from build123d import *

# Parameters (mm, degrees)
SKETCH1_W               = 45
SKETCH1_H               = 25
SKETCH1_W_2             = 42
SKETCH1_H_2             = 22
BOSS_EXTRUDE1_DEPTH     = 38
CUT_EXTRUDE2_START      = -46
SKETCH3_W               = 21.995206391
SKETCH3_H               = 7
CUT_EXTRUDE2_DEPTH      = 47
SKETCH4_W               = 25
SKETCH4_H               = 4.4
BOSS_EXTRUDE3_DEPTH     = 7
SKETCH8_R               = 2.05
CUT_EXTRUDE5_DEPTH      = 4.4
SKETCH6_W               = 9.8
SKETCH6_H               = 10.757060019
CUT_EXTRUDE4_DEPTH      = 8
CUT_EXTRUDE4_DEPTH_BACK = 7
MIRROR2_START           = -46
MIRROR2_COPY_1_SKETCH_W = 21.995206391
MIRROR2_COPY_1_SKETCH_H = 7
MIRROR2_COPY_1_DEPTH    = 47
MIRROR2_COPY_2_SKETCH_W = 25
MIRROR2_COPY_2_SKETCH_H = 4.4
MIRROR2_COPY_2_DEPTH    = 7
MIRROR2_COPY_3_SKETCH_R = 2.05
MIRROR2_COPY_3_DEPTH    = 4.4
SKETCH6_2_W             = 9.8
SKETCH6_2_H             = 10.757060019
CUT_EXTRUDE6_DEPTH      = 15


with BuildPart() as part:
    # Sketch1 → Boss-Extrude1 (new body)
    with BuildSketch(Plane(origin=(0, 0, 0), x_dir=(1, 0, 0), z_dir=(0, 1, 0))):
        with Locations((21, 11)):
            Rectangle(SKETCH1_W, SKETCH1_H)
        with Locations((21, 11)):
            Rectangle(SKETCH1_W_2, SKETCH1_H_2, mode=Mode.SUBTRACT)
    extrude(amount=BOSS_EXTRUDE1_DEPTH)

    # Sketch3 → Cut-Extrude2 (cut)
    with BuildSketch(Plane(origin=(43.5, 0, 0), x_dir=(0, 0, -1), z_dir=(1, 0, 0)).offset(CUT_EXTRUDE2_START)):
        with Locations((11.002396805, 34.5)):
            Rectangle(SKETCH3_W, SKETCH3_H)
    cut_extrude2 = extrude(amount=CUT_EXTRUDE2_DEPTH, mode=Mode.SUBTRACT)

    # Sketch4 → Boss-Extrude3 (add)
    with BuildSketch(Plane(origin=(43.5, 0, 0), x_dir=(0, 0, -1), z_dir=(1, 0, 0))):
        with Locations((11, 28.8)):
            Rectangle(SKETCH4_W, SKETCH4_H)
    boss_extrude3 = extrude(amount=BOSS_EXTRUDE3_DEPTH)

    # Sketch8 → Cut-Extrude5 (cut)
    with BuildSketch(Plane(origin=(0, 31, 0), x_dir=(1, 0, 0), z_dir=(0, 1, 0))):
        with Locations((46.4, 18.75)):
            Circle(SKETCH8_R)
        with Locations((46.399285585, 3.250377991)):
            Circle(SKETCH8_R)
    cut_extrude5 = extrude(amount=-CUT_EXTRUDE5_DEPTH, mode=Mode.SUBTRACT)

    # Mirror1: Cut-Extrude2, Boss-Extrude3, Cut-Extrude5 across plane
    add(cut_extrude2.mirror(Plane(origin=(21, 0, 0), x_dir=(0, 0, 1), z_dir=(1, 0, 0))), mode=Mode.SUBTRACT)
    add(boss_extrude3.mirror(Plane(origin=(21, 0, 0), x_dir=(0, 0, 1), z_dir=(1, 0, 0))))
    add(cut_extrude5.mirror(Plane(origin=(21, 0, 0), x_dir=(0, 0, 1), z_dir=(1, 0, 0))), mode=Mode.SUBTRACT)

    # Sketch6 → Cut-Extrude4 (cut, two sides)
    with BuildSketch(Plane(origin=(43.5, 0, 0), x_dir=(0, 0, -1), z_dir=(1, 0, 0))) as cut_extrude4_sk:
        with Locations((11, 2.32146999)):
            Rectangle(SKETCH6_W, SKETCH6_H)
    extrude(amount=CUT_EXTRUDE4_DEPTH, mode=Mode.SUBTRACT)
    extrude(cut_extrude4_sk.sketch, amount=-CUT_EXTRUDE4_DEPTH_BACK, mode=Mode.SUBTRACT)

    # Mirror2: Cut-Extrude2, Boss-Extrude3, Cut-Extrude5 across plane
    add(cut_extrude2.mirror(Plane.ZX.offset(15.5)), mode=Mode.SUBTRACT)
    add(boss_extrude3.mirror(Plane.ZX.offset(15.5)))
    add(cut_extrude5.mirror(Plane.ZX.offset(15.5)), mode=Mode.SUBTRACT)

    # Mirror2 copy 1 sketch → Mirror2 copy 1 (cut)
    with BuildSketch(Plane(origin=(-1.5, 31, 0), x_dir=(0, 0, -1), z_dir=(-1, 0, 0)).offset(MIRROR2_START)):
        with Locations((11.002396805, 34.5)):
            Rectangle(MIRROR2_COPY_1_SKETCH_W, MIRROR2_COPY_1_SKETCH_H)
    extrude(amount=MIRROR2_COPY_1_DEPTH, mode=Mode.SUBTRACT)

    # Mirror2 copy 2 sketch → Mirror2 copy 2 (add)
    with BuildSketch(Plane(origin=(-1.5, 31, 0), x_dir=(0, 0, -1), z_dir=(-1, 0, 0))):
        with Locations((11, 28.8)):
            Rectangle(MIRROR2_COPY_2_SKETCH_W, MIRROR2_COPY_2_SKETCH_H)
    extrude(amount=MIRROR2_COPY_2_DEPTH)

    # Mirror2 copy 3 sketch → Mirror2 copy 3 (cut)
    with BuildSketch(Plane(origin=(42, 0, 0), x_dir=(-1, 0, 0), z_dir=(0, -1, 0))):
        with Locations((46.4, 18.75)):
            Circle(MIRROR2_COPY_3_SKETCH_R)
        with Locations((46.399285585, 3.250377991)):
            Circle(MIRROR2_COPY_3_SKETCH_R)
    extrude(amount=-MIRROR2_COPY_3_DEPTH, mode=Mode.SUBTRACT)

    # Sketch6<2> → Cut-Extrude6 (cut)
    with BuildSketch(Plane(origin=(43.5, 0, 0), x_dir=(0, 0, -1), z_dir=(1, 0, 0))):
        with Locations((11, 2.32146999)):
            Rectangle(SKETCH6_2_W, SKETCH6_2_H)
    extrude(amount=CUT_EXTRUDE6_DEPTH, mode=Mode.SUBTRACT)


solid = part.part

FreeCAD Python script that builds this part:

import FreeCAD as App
import Part
import Sketcher
from FreeCAD import Vector
Q = App.Units.Quantity


def add_polygon(sketch, points):
    """Adds a closed chain of lines whose ends are joined by coincident constraints."""
    first, n = sketch.GeometryCount, len(points)
    for a, b in zip(points, points[1:] + points[:1]):
        sketch.addGeometry(Part.LineSegment(App.Vector(*a, 0), App.Vector(*b, 0)), False)
    for i in range(n):
        sketch.addConstraint(Sketcher.Constraint("Coincident", first + i, 2, first + (i + 1) % n, 1))

doc = App.newDocument("Part")
body = doc.addObject("PartDesign::Body", "Body")

# Sketch on XZ plane
sketch1 = doc.addObject("Sketcher::SketchObject", "Sketch")
body.addObject(sketch1)
sketch1.AttachmentSupport = (doc.XZ_Plane, [""])
sketch1.MapMode = "FlatFace"
add_polygon(sketch1, [(-1.5, -23.5), (-1.5, 1.5), (43.5, 1.5), (43.5, -23.5)])  # lines 0-3
add_polygon(sketch1, [(42, 0), (0, 0), (0, -22), (42, -22)])  # lines 4-7
sketch1.addConstraint([
    Sketcher.Constraint("Vertical", 0),
    Sketcher.Constraint("Horizontal", 1),
    Sketcher.Constraint("Vertical", 2),
    Sketcher.Constraint("Horizontal", 3),
    Sketcher.Constraint("Horizontal", 4),
    Sketcher.Constraint("Vertical", 5),
    Sketcher.Constraint("Horizontal", 6),
    Sketcher.Constraint("Vertical", 7),
    Sketcher.Constraint("Coincident", 4, 2, -1, 1),
    Sketcher.Constraint("DistanceX", 1, 1, 1, 2, Q("45 mm")),
    Sketcher.Constraint("DistanceX", 4, 2, 4, 1, Q("42 mm")),
    Sketcher.Constraint("DistanceY", 0, 1, 0, 2, Q("25 mm")),
    Sketcher.Constraint("DistanceY", 5, 2, 5, 1, Q("22 mm")),
    Sketcher.Constraint("DistanceX", 0, 2, -1, 1, Q("1.5 mm")),
    Sketcher.Constraint("DistanceY", -1, 1, 0, 2, Q("1.5 mm")),
])
pad1 = doc.addObject("PartDesign::Pad", "Pad")
body.addObject(pad1)
pad1.Profile = sketch1
pad1.Length = 38
pad1.Reversed = True

# Sketch on YZ plane
sketch2 = doc.addObject("Sketcher::SketchObject", "Sketch001")
body.addObject(sketch2)
sketch2.AttachmentSupport = (doc.YZ_Plane, [""])
sketch2.MapMode = "FlatFace"
sketch2.AttachmentOffset = App.Placement(Vector(0, 0, -2.5), App.Rotation())
add_polygon(sketch2, [(38, -0.004794), (31, -0.004794), (31, -22), (38, -22)])  # lines 0-3
sketch2.addConstraint([
    Sketcher.Constraint("Horizontal", 0),
    Sketcher.Constraint("Vertical", 1),
    Sketcher.Constraint("Horizontal", 2),
    Sketcher.Constraint("Vertical", 3),
    Sketcher.Constraint("DistanceX", 0, 2, 0, 1, Q("7 mm")),
    Sketcher.Constraint("DistanceX", -1, 1, 0, 2, Q("31 mm")),
    Sketcher.Constraint("DistanceY", 1, 2, -1, 1, Q("22 mm")),
    Sketcher.Constraint("DistanceY", 1, 2, 1, 1, Q("21.995206 mm")),
])
pocket1 = doc.addObject("PartDesign::Pocket", "Pocket")
body.addObject(pocket1)
pocket1.Profile = sketch2
pocket1.Length = 47
pocket1.Reversed = True

# Sketch on YZ plane
sketch3 = doc.addObject("Sketcher::SketchObject", "Sketch002")
body.addObject(sketch3)
sketch3.AttachmentSupport = (doc.YZ_Plane, [""])
sketch3.MapMode = "FlatFace"
sketch3.AttachmentOffset = App.Placement(Vector(0, 0, 43.5), App.Rotation())
add_polygon(sketch3, [(31, 1.5), (26.6, 1.5), (26.6, -23.5), (31, -23.5)])  # lines 0-3
sketch3.addConstraint([
    Sketcher.Constraint("Horizontal", 0),
    Sketcher.Constraint("Vertical", 1),
    Sketcher.Constraint("Horizontal", 2),
    Sketcher.Constraint("Vertical", 3),
    Sketcher.Constraint("DistanceY", 1, 2, 1, 1, Q("25 mm")),
    Sketcher.Constraint("DistanceX", 0, 2, 0, 1, Q("4.4 mm")),
    Sketcher.Constraint("DistanceX", -1, 1, 2, 2, Q("31 mm")),
    Sketcher.Constraint("DistanceY", -1, 1, 0, 2, Q("1.5 mm")),
])
pad2 = doc.addObject("PartDesign::Pad", "Pad001")
body.addObject(pad2)
pad2.Profile = sketch3
pad2.Length = 7

# Sketch on XZ plane
sketch4 = doc.addObject("Sketcher::SketchObject", "Sketch003")
body.addObject(sketch4)
sketch4.AttachmentSupport = (doc.XZ_Plane, [""])
sketch4.MapMode = "FlatFace"
sketch4.AttachmentOffset = App.Placement(Vector(0, 0, -31), App.Rotation())
sketch4.addGeometry([
    Part.Circle(Vector(46.4, -18.75, 0), Vector(0, 0, 1), 2.05),
    Part.Circle(Vector(46.399286, -3.250378, 0), Vector(0, 0, 1), 2.05),
], False)
sketch4.addConstraint([
    Sketcher.Constraint("Equal", 0, 1),
    Sketcher.Constraint("Diameter", 0, Q("4.1 mm")),
    Sketcher.Constraint("DistanceX", -1, 1, 0, 3, Q("46.4 mm")),
    Sketcher.Constraint("DistanceY", 0, 3, -1, 1, Q("18.75 mm")),
    Sketcher.Constraint("DistanceX", -1, 1, 1, 3, Q("46.399286 mm")),
    Sketcher.Constraint("DistanceY", 1, 3, -1, 1, Q("3.250378 mm")),
])
pocket2 = doc.addObject("PartDesign::Pocket", "Pocket001")
body.addObject(pocket2)
pocket2.Profile = sketch4
pocket2.Length = 4.4
pocket2.Reversed = True
doc.recompute()

datumplane = doc.addObject("PartDesign::Plane", "DatumPlane")
body.addObject(datumplane)
datumplane.AttachmentSupport = (doc.YZ_Plane, [""])
datumplane.MapMode = "FlatFace"
datumplane.AttachmentOffset = App.Placement(Vector(0, 0, 21), App.Rotation())
mirrored = doc.addObject("PartDesign::Mirrored", "Mirrored")
body.addObject(mirrored)
mirrored.Originals = [pocket1, pad2, pocket2]
mirrored.MirrorPlane = (datumplane, [""])
body.Tip = mirrored

# Sketch on YZ plane
sketch5 = doc.addObject("Sketcher::SketchObject", "Sketch004")
body.addObject(sketch5)
sketch5.AttachmentSupport = (doc.YZ_Plane, [""])
sketch5.MapMode = "FlatFace"
sketch5.AttachmentOffset = App.Placement(Vector(0, 0, 43.5), App.Rotation())
add_polygon(sketch5, [(7.7, -6.1), (-3.05706, -6.1), (-3.05706, -15.9), (7.7, -15.9)])  # lines 0-3
sketch5.addConstraint([
    Sketcher.Constraint("Horizontal", 0),
    Sketcher.Constraint("Vertical", 1),
    Sketcher.Constraint("Horizontal", 2),
    Sketcher.Constraint("Vertical", 3),
    Sketcher.Constraint("DistanceY", 1, 2, 1, 1, Q("9.8 mm")),
    Sketcher.Constraint("DistanceY", 0, 2, -1, 1, Q("6.1 mm")),
    Sketcher.Constraint("DistanceX", -1, 1, 2, 2, Q("7.7 mm")),
    Sketcher.Constraint("DistanceX", 0, 2, 0, 1, Q("10.75706 mm")),
])
pocket3 = doc.addObject("PartDesign::Pocket", "Pocket002")
body.addObject(pocket3)
pocket3.Profile = sketch5
pocket3.Type = "TwoLengths"
pocket3.Length = 8
pocket3.Length2 = 7
pocket3.Reversed = True
doc.recompute()

datumplane2 = doc.addObject("PartDesign::Plane", "DatumPlane001")
body.addObject(datumplane2)
datumplane2.AttachmentSupport = (doc.XZ_Plane, [""])
datumplane2.MapMode = "FlatFace"
datumplane2.AttachmentOffset = App.Placement(Vector(0, 0, -15.5), App.Rotation())
mirrored2 = doc.addObject("PartDesign::Mirrored", "Mirrored001")
body.addObject(mirrored2)
mirrored2.Originals = [pocket1, pad2, pocket2]
mirrored2.MirrorPlane = (datumplane2, [""])
body.Tip = mirrored2

# Sketch on YZ plane
sketch6 = doc.addObject("Sketcher::SketchObject", "Sketch005")
body.addObject(sketch6)
sketch6.AttachmentSupport = (doc.YZ_Plane, [""])
sketch6.MapMode = "FlatFace"
sketch6.AttachmentOffset = App.Placement(Vector(0, 0, 44.5), App.Rotation())
add_polygon(sketch6, [(-7, -0.004794), (0, -0.004794), (0, -22), (-7, -22)])  # lines 0-3
sketch6.addConstraint([
    Sketcher.Constraint("Horizontal", 0),
    Sketcher.Constraint("Vertical", 1),
    Sketcher.Constraint("Horizontal", 2),
    Sketcher.Constraint("Vertical", 3),
    Sketcher.Constraint("PointOnObject", 0, 2, -2),
    Sketcher.Constraint("DistanceX", 0, 1, 0, 2, Q("7 mm")),
    Sketcher.Constraint("DistanceY", 1, 2, -1, 1, Q("22 mm")),
    Sketcher.Constraint("DistanceY", 1, 2, 1, 1, Q("21.995206 mm")),
])
pocket4 = doc.addObject("PartDesign::Pocket", "Pocket003")
body.addObject(pocket4)
pocket4.Profile = sketch6
pocket4.Length = 47

# Sketch on YZ plane
sketch7 = doc.addObject("Sketcher::SketchObject", "Sketch006")
body.addObject(sketch7)
sketch7.AttachmentSupport = (doc.YZ_Plane, [""])
sketch7.MapMode = "FlatFace"
sketch7.AttachmentOffset = App.Placement(Vector(0, 0, -1.5), App.Rotation())
add_polygon(sketch7, [(0, 1.5), (4.4, 1.5), (4.4, -23.5), (0, -23.5)])  # lines 0-3
sketch7.addConstraint([
    Sketcher.Constraint("Horizontal", 0),
    Sketcher.Constraint("Vertical", 1),
    Sketcher.Constraint("Horizontal", 2),
    Sketcher.Constraint("Vertical", 3),
    Sketcher.Constraint("PointOnObject", 2, 2, -2),
    Sketcher.Constraint("DistanceY", 1, 2, 1, 1, Q("25 mm")),
    Sketcher.Constraint("DistanceX", 0, 1, 0, 2, Q("4.4 mm")),
    Sketcher.Constraint("DistanceY", -1, 1, 0, 2, Q("1.5 mm")),
])
pad3 = doc.addObject("PartDesign::Pad", "Pad002")
body.addObject(pad3)
pad3.Profile = sketch7
pad3.Length = 7
pad3.Reversed = True

# Sketch on XZ plane
sketch8 = doc.addObject("Sketcher::SketchObject", "Sketch007")
body.addObject(sketch8)
sketch8.AttachmentSupport = (doc.XZ_Plane, [""])
sketch8.MapMode = "FlatFace"
sketch8.addGeometry([
    Part.Circle(Vector(-4.4, -18.75, 0), Vector(0, 0, 1), 2.05),
    Part.Circle(Vector(-4.399286, -3.250378, 0), Vector(0, 0, 1), 2.05),
], False)
sketch8.addConstraint([
    Sketcher.Constraint("Equal", 0, 1),
    Sketcher.Constraint("Diameter", 0, Q("4.1 mm")),
    Sketcher.Constraint("DistanceX", 0, 3, -1, 1, Q("4.4 mm")),
    Sketcher.Constraint("DistanceY", 0, 3, -1, 1, Q("18.75 mm")),
    Sketcher.Constraint("DistanceX", 1, 3, -1, 1, Q("4.399286 mm")),
    Sketcher.Constraint("DistanceY", 1, 3, -1, 1, Q("3.250378 mm")),
])
pocket5 = doc.addObject("PartDesign::Pocket", "Pocket004")
body.addObject(pocket5)
pocket5.Profile = sketch8
pocket5.Length = 4.4

# Sketch on YZ plane
sketch9 = doc.addObject("Sketcher::SketchObject", "Sketch008")
body.addObject(sketch9)
sketch9.AttachmentSupport = (doc.YZ_Plane, [""])
sketch9.MapMode = "FlatFace"
sketch9.AttachmentOffset = App.Placement(Vector(0, 0, 43.5), App.Rotation())
add_polygon(sketch9, [(7.7, -6.1), (-3.05706, -6.1), (-3.05706, -15.9), (7.7, -15.9)])  # lines 0-3
sketch9.addConstraint([
    Sketcher.Constraint("Horizontal", 0),
    Sketcher.Constraint("Vertical", 1),
    Sketcher.Constraint("Horizontal", 2),
    Sketcher.Constraint("Vertical", 3),
    Sketcher.Constraint("DistanceY", 1, 2, 1, 1, Q("9.8 mm")),
    Sketcher.Constraint("DistanceY", 0, 2, -1, 1, Q("6.1 mm")),
    Sketcher.Constraint("DistanceX", -1, 1, 2, 2, Q("7.7 mm")),
    Sketcher.Constraint("DistanceX", 0, 2, 0, 1, Q("10.75706 mm")),
])
pocket6 = doc.addObject("PartDesign::Pocket", "Pocket005")
body.addObject(pocket6)
pocket6.Profile = sketch9
pocket6.Length = 15
pocket6.Reversed = True

doc.recompute()
